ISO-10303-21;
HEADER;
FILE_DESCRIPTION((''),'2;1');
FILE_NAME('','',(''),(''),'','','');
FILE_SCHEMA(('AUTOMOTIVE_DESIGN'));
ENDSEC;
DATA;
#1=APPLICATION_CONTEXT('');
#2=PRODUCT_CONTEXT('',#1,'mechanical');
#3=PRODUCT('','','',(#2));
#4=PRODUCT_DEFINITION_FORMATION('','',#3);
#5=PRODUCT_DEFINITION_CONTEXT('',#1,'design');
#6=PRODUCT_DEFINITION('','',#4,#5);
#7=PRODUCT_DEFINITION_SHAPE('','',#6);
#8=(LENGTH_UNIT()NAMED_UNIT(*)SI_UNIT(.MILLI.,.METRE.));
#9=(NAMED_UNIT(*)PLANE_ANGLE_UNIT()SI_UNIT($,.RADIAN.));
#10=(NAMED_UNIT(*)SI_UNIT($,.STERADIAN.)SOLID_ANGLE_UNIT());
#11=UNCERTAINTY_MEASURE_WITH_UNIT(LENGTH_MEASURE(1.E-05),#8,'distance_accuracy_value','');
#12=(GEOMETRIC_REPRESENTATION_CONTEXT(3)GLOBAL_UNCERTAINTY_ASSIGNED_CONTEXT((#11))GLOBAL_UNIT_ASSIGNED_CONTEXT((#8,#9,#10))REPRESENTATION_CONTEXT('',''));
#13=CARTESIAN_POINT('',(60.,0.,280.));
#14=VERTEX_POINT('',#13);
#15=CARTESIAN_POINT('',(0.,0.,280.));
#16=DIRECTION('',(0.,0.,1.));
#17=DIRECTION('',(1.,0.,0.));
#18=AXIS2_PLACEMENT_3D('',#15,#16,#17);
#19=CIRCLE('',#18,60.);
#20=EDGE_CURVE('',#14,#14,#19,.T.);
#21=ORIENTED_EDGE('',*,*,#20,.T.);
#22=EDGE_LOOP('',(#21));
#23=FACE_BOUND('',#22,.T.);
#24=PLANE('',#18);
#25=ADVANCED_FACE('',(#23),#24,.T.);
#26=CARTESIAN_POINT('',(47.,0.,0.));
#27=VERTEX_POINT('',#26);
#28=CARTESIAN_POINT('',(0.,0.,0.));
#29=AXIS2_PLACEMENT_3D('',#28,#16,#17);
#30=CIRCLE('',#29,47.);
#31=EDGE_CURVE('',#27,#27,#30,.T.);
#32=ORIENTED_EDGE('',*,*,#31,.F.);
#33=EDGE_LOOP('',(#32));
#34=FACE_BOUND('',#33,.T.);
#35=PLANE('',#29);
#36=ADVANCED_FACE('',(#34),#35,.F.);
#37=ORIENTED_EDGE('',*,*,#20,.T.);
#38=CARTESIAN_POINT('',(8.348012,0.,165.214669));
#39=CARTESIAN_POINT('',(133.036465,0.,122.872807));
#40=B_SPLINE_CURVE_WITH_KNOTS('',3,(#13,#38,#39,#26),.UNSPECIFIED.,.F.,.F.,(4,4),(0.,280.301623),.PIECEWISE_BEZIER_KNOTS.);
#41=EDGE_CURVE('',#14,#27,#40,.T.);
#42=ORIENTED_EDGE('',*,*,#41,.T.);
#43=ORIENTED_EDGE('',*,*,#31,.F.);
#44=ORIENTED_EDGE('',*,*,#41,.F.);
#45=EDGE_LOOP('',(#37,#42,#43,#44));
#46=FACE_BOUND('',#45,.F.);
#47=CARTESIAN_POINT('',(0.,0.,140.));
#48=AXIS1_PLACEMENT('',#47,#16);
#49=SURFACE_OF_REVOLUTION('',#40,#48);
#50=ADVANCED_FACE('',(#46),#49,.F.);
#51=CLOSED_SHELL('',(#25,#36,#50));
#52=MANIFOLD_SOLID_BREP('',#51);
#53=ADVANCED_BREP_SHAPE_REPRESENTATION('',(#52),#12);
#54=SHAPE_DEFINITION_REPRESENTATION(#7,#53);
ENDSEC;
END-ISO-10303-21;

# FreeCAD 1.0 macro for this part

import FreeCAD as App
import Part
import Sketcher

doc = App.newDocument("Part")
body = doc.addObject("PartDesign::Body", "Body")

# Sketch on XZ plane
sketch1 = body.newObject("Sketcher::SketchObject", "Sketch")
sketch1.AttachmentSupport = (doc.getObject("XZ_Plane"), [""])
sketch1.MapMode = "FlatFace"
sketch1.addGeometry([
    Part.LineSegment(App.Vector(0, 280, 0), App.Vector(0, 0, 0)),
    Part.LineSegment(App.Vector(0, 0, 0), App.Vector(47, 0, 0)),
    Part.BSplineCurve([App.Vector(60, 280, 0), App.Vector(8.348012, 165.214669, 0), App.Vector(133.036465, 122.872807, 0), App.Vector(47, 0, 0)], [4, 4], [0, 280.301623], False, 3, [1, 1, 1, 1], False),
    Part.LineSegment(App.Vector(60, 280, 0), App.Vector(0, 280, 0)),
], False)
sketch1.addConstraint([
    Sketcher.Constraint("Block", 2),
    Sketcher.Constraint("Coincident", 0, 2, 1, 1),
    Sketcher.Constraint("Coincident", 1, 2, 2, 2),
    Sketcher.Constraint("Coincident", 2, 1, 3, 1),
    Sketcher.Constraint("Coincident", 3, 2, 0, 1),
    Sketcher.Constraint("Vertical", 0),
    Sketcher.Constraint("Horizontal", 1),
    Sketcher.Constraint("Horizontal", 3),
    Sketcher.Constraint("PointOnObject", 3, 2, -2),
])
revolution = body.newObject("PartDesign::Revolution", "Revolution")
revolution.Profile = sketch1
revolution.ReferenceAxis = (sketch1, ["V_Axis"])
revolution.Angle = 360

doc.recompute()
